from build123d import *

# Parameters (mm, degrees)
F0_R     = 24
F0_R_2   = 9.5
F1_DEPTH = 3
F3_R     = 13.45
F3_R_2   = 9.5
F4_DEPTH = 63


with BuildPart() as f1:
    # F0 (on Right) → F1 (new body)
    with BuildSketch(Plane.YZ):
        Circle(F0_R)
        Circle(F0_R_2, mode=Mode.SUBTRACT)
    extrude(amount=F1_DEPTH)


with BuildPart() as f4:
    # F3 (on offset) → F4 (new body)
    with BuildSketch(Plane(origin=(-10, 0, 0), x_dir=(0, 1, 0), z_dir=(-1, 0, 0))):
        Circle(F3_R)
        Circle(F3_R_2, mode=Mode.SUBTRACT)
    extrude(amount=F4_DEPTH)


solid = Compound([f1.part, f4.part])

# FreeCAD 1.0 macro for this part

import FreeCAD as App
import Part
import Sketcher

V = App.Vector

doc = App.newDocument("Part")
body = doc.addObject("PartDesign::Body", "Body")

# Sketch on YZ plane
sketch1 = doc.addObject("Sketcher::SketchObject", "Sketch")
body.addObject(sketch1)
sketch1.AttachmentSupport = (doc.YZ_Plane, [""])
sketch1.MapMode = "FlatFace"
sketch1.addGeometry([
    Part.Circle(V(0, 0, 0), V(0, 0, 1), 24),
    Part.Circle(V(0, 0, 0), V(0, 0, 1), 10),
], False)
sketch1.addConstraint([
    Sketcher.Constraint("Coincident", 0, 3, -1, 1),
    Sketcher.Constraint("Coincident", 1, 3, -1, 1),
    Sketcher.Constraint("Diameter", 0, 48.0),
    Sketcher.Constraint("Diameter", 1, 19.0),
])
pad1 = doc.addObject("PartDesign::Pad", "Pad")
body.addObject(pad1)
pad1.Profile = sketch1
pad1.Length = 3
body2 = doc.addObject("PartDesign::Body", "Body001")

# Sketch on YZ plane
sketch2 = doc.addObject("Sketcher::SketchObject", "Sketch001")
body2.addObject(sketch2)
sketch2.AttachmentSupport = (doc.getObject("YZ_Plane001"), [""])
sketch2.MapMode = "FlatFace"
sketch2.AttachmentOffset = App.Placement(V(0, 0, -10), App.Rotation())
sketch2.addGeometry([
    Part.Circle(V(0, 0, 0), V(0, 0, 1), 13),
    Part.Circle(V(0, 0, 0), V(0, 0, 1), 10),
], False)
sketch2.addConstraint([
    Sketcher.Constraint("Coincident", 0, 3, -1, 1),
    Sketcher.Constraint("Coincident", 1, 3, -1, 1),
    Sketcher.Constraint("Diameter", 1, 19.0),
    Sketcher.Constraint("Diameter", 0, 26.9),
])
pad2 = doc.addObject("PartDesign::Pad", "Pad001")
body2.addObject(pad2)
pad2.Profile = sketch2
pad2.Length = 63
pad2.Reversed = True

doc.recompute()
